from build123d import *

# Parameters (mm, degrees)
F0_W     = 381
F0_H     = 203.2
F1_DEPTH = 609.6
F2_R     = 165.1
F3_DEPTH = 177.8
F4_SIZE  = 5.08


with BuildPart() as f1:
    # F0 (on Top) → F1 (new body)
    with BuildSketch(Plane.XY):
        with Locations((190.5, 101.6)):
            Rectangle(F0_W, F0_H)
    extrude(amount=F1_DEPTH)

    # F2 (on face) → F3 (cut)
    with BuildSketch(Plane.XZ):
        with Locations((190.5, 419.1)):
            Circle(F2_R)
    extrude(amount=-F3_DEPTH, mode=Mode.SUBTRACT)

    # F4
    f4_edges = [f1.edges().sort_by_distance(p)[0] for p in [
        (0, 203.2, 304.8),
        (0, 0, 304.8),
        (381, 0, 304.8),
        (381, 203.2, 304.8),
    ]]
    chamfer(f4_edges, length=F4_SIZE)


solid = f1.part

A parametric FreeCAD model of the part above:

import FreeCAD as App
import Part
import Sketcher
from FreeCAD import Vector
Q = App.Units.Quantity


def edges_at(feature, points):
    """Names of the edges that pass closest to the given points."""
    edges = feature.Shape.Edges
    near = lambda p: min(range(len(edges)), key=lambda i: edges[i].distToShape(Part.Vertex(*p))[0])
    return sorted({f"Edge{near(p) + 1}" for p in points})


def add_polygon(sketch, points):
    """Adds a closed chain of lines whose ends are joined by coincident constraints."""
    first, n = sketch.GeometryCount, len(points)
    for a, b in zip(points, points[1:] + points[:1]):
        sketch.addGeometry(Part.LineSegment(App.Vector(*a, 0), App.Vector(*b, 0)), False)
    for i in range(n):
        sketch.addConstraint(Sketcher.Constraint("Coincident", first + i, 2, first + (i + 1) % n, 1))

doc = App.newDocument("Part")
body = doc.addObject("PartDesign::Body", "Body")

# Sketch on XY plane
sketch1 = body.newObject("Sketcher::SketchObject", "Sketch")
sketch1.AttachmentSupport = (doc.getObject("XY_Plane"), [""])
sketch1.MapMode = "FlatFace"
add_polygon(sketch1, [(0, 203.2), (0, 0), (381, 0), (381, 203.2)])  # lines 0-3
sketch1.addConstraint(Sketcher.Constraint("Vertical", 0))
sketch1.addConstraint(Sketcher.Constraint("Horizontal", 1))
sketch1.addConstraint(Sketcher.Constraint("Vertical", 2))
sketch1.addConstraint(Sketcher.Constraint("Horizontal", 3))
sketch1.addConstraint(Sketcher.Constraint("Coincident", 0, 2, -1, 1))
sketch1.addConstraint(Sketcher.Constraint("DistanceX", 1, 1, 1, 2, Q("15 in")))
sketch1.addConstraint(Sketcher.Constraint("DistanceY", 0, 2, 0, 1, Q("8 in")))
pad1 = body.newObject("PartDesign::Pad", "Pad")
pad1.Profile = sketch1
pad1.Length = Q("24 in")

# Sketch on XZ plane
sketch2 = body.newObject("Sketcher::SketchObject", "Sketch001")
sketch2.AttachmentSupport = (doc.getObject("XZ_Plane"), [""])
sketch2.MapMode = "FlatFace"
sketch2.addGeometry(Part.Circle(Vector(190.5, 419.1, 0), Vector(0, 0, 1), 165.1), False)
sketch2.addConstraint(Sketcher.Constraint("Diameter", 0, Q("13 in")))
sketch2.addConstraint(Sketcher.Constraint("DistanceX", -1, 1, 0, 3, Q("7.5 in")))
sketch2.addConstraint(Sketcher.Constraint("DistanceY", -1, 1, 0, 3, Q("16.5 in")))
pocket1 = body.newObject("PartDesign::Pocket", "Pocket")
pocket1.Profile = sketch2
pocket1.Length = Q("7 in")
doc.recompute()

chamfer = body.newObject("PartDesign::Chamfer", "Chamfer")
chamfer.Base = (pocket1, edges_at(pocket1, [
    (0, 203.2, 304.8),
    (0, 0, 304.8),
    (381, 0, 304.8),
    (381, 203.2, 304.8),
]))
chamfer.Size = Q("0.2 in")

doc.recompute()
